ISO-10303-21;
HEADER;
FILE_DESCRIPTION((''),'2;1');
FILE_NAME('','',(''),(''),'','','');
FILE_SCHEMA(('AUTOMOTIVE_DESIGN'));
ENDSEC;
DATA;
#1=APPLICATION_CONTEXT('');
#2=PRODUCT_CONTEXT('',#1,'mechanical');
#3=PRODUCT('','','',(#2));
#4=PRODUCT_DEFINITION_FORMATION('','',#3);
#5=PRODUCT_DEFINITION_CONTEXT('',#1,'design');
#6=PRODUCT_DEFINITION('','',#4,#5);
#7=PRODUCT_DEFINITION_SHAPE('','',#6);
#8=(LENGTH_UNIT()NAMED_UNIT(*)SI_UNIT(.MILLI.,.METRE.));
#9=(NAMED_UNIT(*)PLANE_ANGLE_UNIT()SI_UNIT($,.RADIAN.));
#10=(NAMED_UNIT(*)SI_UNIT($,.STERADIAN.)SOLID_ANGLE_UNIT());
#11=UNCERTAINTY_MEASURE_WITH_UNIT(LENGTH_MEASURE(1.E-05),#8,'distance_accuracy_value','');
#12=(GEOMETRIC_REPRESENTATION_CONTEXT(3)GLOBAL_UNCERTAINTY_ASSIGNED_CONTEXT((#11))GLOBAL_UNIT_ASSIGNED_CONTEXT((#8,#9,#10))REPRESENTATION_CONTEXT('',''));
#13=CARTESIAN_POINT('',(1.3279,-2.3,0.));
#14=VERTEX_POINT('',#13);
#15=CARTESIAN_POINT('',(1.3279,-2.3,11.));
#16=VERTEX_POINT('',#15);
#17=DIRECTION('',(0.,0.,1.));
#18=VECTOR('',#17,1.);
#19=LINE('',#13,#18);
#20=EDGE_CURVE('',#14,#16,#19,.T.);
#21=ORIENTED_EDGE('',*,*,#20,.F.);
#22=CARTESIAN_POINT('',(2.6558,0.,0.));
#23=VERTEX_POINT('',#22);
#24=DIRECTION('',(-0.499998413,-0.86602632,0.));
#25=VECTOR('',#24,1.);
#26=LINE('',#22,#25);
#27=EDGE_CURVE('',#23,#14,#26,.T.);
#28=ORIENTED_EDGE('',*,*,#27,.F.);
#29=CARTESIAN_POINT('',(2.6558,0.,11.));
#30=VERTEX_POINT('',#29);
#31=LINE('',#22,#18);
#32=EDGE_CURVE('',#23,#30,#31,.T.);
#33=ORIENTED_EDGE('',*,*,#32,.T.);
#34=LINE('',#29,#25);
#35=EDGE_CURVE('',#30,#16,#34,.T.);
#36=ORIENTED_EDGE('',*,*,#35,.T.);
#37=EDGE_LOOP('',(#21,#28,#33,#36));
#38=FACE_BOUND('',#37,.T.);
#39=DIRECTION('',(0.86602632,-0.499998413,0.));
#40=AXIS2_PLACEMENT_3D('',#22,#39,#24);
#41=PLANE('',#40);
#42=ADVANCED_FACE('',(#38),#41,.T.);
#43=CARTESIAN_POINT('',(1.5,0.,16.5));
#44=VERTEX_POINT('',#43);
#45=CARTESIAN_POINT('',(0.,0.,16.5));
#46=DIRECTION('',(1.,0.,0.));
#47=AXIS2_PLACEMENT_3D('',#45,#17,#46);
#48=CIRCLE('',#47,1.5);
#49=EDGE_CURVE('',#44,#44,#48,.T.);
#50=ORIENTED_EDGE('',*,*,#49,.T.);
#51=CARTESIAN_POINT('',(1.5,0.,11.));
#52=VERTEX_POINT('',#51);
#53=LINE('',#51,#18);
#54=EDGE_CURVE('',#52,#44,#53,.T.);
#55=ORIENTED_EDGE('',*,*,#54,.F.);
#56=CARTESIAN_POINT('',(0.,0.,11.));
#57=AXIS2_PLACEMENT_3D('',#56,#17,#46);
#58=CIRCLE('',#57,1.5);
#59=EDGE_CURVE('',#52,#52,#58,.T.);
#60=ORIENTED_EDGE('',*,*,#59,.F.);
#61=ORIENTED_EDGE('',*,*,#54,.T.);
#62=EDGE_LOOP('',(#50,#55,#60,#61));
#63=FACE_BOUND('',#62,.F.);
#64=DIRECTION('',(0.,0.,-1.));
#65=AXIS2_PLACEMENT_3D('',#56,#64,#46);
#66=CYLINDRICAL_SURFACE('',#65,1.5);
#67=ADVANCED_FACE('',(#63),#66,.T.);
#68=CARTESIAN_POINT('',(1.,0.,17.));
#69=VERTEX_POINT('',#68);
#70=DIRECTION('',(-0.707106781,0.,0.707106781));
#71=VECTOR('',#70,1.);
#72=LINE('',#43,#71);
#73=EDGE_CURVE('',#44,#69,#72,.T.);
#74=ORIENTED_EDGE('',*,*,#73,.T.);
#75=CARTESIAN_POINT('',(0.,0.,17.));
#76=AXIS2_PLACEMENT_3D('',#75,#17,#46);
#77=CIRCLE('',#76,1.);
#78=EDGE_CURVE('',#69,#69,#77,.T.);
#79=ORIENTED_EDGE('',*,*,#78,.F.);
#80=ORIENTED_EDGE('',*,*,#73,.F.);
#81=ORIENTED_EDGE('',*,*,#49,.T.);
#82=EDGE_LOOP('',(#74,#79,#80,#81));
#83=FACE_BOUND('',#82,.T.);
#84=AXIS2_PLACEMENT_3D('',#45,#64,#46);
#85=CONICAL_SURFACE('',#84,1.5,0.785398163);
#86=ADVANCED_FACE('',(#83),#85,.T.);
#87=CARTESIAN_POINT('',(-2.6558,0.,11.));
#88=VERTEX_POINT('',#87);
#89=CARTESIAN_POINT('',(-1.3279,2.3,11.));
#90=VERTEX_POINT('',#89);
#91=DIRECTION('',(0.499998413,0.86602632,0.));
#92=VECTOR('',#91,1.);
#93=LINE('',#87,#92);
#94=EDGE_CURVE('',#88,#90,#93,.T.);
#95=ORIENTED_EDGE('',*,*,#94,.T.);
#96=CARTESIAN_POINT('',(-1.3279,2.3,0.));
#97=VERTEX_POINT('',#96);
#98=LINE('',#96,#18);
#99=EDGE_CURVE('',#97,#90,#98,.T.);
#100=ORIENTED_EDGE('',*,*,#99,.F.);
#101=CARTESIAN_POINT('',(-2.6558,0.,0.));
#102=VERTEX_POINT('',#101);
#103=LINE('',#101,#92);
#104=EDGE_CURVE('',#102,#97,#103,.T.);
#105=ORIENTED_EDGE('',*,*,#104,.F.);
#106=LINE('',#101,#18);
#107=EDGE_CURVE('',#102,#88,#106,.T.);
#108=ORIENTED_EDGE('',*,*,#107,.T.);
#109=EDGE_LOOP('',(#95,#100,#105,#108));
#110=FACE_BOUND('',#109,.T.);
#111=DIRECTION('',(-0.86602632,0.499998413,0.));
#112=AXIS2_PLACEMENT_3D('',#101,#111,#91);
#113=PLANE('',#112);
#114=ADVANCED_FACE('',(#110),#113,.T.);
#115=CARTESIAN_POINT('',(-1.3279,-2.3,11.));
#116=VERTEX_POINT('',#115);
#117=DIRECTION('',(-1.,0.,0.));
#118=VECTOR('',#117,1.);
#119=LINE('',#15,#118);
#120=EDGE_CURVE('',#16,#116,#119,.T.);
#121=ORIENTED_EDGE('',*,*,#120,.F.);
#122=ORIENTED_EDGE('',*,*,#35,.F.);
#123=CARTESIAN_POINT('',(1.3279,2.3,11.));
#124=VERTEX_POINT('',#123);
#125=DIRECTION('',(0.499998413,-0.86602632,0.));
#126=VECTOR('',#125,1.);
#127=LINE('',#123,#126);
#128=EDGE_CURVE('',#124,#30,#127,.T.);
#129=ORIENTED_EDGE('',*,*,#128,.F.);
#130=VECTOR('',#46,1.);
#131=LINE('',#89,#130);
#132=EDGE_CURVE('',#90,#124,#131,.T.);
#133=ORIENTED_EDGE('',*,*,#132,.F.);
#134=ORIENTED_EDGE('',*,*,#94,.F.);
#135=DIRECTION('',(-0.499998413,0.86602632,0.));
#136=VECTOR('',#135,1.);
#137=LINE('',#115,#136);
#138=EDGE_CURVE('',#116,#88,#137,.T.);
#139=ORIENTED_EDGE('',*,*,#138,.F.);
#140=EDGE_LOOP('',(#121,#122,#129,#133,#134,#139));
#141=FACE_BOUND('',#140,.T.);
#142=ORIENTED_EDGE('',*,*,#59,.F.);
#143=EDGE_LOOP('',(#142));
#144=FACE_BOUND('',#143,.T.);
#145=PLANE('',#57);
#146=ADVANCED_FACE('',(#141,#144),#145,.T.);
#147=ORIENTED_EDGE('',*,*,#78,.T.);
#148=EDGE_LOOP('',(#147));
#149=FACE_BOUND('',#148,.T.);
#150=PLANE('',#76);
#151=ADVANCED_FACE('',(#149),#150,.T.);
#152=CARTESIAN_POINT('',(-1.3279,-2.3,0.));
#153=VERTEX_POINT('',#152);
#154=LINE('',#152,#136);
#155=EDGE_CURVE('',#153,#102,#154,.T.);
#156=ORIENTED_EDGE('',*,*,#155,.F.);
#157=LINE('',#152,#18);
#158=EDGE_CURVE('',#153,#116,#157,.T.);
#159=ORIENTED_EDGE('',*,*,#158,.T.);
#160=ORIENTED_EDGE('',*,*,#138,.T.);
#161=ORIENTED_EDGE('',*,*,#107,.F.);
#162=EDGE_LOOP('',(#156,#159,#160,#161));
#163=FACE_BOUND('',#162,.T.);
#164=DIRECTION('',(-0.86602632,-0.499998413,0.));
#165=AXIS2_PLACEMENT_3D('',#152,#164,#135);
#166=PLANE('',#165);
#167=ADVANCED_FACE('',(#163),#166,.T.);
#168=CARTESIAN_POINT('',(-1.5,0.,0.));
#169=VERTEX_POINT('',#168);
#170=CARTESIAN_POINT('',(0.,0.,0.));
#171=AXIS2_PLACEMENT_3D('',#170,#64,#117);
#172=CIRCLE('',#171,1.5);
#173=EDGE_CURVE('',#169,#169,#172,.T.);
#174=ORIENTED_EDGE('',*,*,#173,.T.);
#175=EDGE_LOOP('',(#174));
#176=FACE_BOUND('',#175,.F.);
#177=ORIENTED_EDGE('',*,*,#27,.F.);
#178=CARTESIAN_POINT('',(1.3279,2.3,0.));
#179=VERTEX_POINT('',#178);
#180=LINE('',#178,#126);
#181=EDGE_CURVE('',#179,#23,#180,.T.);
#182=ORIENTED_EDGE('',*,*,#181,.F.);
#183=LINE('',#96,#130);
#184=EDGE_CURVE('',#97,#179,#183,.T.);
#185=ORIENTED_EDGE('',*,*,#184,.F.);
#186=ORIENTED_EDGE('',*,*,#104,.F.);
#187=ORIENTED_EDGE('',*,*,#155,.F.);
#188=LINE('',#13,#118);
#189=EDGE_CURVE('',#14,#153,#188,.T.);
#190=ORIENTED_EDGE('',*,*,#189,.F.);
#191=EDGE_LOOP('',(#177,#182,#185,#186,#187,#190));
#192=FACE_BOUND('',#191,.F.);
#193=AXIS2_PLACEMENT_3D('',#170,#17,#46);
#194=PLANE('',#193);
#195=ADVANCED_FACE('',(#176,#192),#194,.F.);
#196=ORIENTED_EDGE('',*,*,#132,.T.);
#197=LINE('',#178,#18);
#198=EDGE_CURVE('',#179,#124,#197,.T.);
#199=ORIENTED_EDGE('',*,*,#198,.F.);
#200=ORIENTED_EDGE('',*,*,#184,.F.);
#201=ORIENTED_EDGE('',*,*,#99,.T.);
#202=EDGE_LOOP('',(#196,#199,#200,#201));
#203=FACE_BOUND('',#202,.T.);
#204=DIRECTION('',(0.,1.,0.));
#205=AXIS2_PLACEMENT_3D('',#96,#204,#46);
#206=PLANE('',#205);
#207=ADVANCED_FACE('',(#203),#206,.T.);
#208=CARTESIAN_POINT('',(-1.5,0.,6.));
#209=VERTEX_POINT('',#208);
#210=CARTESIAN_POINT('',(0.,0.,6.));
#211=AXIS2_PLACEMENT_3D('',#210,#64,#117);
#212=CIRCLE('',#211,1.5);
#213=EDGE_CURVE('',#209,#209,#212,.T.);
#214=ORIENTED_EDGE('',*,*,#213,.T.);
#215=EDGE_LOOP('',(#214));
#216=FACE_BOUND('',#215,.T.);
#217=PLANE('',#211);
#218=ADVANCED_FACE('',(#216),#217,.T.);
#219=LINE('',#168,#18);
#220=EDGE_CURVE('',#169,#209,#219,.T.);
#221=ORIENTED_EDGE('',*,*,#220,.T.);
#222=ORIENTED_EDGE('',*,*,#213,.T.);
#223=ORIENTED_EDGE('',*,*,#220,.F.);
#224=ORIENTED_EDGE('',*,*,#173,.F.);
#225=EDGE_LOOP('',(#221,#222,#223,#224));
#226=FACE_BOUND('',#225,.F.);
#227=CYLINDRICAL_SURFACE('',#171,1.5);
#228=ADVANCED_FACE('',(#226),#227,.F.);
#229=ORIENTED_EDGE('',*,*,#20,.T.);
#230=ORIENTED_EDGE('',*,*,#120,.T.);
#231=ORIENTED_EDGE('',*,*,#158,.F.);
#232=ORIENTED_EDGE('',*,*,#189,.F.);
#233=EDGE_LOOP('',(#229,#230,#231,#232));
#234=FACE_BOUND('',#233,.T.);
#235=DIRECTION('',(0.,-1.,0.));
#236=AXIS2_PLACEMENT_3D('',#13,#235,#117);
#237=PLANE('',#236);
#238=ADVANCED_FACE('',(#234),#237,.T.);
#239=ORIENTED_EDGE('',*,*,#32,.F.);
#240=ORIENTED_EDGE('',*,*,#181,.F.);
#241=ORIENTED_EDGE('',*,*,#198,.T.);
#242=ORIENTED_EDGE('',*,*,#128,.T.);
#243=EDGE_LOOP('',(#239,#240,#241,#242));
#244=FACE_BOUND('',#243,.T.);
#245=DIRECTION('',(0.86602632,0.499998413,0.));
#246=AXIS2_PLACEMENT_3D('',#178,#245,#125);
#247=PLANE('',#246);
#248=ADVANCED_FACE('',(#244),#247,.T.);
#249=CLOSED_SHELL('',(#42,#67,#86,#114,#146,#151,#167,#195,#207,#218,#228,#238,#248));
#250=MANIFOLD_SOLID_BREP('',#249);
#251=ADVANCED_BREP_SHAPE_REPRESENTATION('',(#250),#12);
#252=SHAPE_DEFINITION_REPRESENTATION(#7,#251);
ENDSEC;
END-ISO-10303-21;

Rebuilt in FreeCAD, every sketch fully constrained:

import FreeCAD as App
import Part
import Sketcher
Q = App.Units.Quantity


def edges_at(feature, points):
    """Names of the edges that pass closest to the given points."""
    edges = feature.Shape.Edges
    near = lambda p: min(range(len(edges)), key=lambda i: edges[i].distToShape(Part.Vertex(*p))[0])
    return sorted({f"Edge{near(p) + 1}" for p in points})


def add_polygon(sketch, points):
    """Adds a closed chain of lines whose ends are joined by coincident constraints."""
    first, n = sketch.GeometryCount, len(points)
    for a, b in zip(points, points[1:] + points[:1]):
        sketch.addGeometry(Part.LineSegment(App.Vector(*a, 0), App.Vector(*b, 0)), False)
    for i in range(n):
        sketch.addConstraint(Sketcher.Constraint("Coincident", first + i, 2, first + (i + 1) % n, 1))

doc = App.newDocument("Part")
body = doc.addObject("PartDesign::Body", "Body")

# Sketch on XY plane
sketch1 = doc.addObject("Sketcher::SketchObject", "Sketch")
body.addObject(sketch1)
sketch1.AttachmentSupport = (doc.XY_Plane, [""])
sketch1.MapMode = "FlatFace"
add_polygon(sketch1, [(2.7, 0), (1.3, 2.3), (-1.3, 2.3), (-2.7, 0), (-1.3, -2.3), (1.3, -2.3)])  # lines 0-5
sketch1.addConstraint(Sketcher.Constraint("Horizontal", 1))
sketch1.addConstraint(Sketcher.Constraint("Horizontal", 4))
sketch1.addConstraint(Sketcher.Constraint("Symmetric", 0, 2, 3, 2, -1, 1))
sketch1.addConstraint(Sketcher.Constraint("Symmetric", 2, 2, 5, 2, -1, 1))
sketch1.addConstraint(Sketcher.Constraint("PointOnObject", 2, 2, -1))
sketch1.addConstraint(Sketcher.Constraint("Parallel", 2, 5))
sketch1.addConstraint(Sketcher.Constraint("Vertical", 1, 2, 3, 2))
sketch1.addConstraint(Sketcher.Constraint("DistanceY", 3, 2, 1, 2, Q("4.6 mm")))
sketch1.addConstraint(Sketcher.Constraint("Angle", 0, Q("120 deg")))
sketch1.addConstraint(Sketcher.Constraint("DistanceX", 1, 2, 1, 1, Q("2.6558 mm")))
pad1 = doc.addObject("PartDesign::Pad", "Pad")
body.addObject(pad1)
pad1.Profile = sketch1
pad1.Length = 11

# Sketch on XY plane
sketch2 = doc.addObject("Sketcher::SketchObject", "Sketch001")
body.addObject(sketch2)
sketch2.AttachmentSupport = (doc.XY_Plane, [""])
sketch2.MapMode = "FlatFace"
sketch2.AttachmentOffset = App.Placement(App.Vector(0, 0, 11), App.Rotation())
sketch2.addGeometry(Part.Circle(App.Vector(0, 0, 0), App.Vector(0, 0, 1), 1.5), False)
sketch2.addConstraint(Sketcher.Constraint("Coincident", 0, 3, -1, 1))
sketch2.addConstraint(Sketcher.Constraint("Diameter", 0, Q("3 mm")))
pad2 = doc.addObject("PartDesign::Pad", "Pad001")
body.addObject(pad2)
pad2.Profile = sketch2
pad2.Length = 6
doc.recompute()

chamfer = doc.addObject("PartDesign::Chamfer", "Chamfer")
body.addObject(chamfer)
chamfer.Base = (pad2, edges_at(pad2, [(-1.5, 0, 17)]))
chamfer.Size = 0.5

# Sketch on XY plane
sketch3 = doc.addObject("Sketcher::SketchObject", "Sketch002")
body.addObject(sketch3)
sketch3.AttachmentSupport = (doc.XY_Plane, [""])
sketch3.MapMode = "FlatFace"
sketch3.addGeometry(Part.Circle(App.Vector(0, 0, 0), App.Vector(0, 0, 1), 1.5), False)
sketch3.addConstraint(Sketcher.Constraint("Coincident", 0, 3, -1, 1))
sketch3.addConstraint(Sketcher.Constraint("Diameter", 0, Q("3 mm")))
pocket1 = doc.addObject("PartDesign::Pocket", "Pocket")
body.addObject(pocket1)
pocket1.Profile = sketch3
pocket1.Length = 6
pocket1.Reversed = True

doc.recompute()
